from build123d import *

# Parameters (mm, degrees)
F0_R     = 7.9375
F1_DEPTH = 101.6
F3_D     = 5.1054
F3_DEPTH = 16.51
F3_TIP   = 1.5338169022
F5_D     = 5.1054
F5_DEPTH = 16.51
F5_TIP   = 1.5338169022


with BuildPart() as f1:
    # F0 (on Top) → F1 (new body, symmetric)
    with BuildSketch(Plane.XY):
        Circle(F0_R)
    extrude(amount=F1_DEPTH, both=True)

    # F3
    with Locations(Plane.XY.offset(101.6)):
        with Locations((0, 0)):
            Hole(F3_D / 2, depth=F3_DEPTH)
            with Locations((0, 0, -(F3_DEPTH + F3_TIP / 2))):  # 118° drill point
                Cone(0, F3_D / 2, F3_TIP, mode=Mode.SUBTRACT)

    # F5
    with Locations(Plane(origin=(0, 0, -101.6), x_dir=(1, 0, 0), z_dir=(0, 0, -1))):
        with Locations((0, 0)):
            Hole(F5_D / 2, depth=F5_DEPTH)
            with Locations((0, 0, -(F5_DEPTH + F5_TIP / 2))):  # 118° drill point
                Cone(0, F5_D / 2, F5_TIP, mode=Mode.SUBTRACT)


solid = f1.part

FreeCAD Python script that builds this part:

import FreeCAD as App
import Part
import Sketcher

V = App.Vector
Q = App.Units.Quantity

doc = App.newDocument("Part")
params = doc.addObject("Spreadsheet::Sheet", "Params")
for row, (alias, value) in enumerate([
    ("sketch1_diameter", "0.625 in"),
    ("pad1_length", "8 in"),
    ("sketch2_diameter", "0.201 in"),
    ("hole_diameter", "0.201 in"),
    ("hole_depth", "0.65 in"),
    ("sketch3_diameter", "0.201 in"),
    ("hole2_diameter", "0.201 in"),
    ("hole2_depth", "0.65 in"),
], start=1):
    params.set(f"A{row}", alias)
    params.set(f"B{row}", "=" + value)
    params.setAlias(f"B{row}", alias)

body = doc.addObject("PartDesign::Body", "Body")

# Sketch on XY plane
sketch1 = body.newObject("Sketcher::SketchObject", "Sketch")
sketch1.AttachmentSupport = (doc.getObject("XY_Plane"), [""])
sketch1.MapMode = "FlatFace"
sketch1.addGeometry(Part.Circle(V(0, 0, 0), V(0, 0, 1), 7.9375), False)
sketch1.addConstraint([
    Sketcher.Constraint("Coincident", 0, 3, -1, 1),
    Sketcher.Constraint("Diameter", 0, Q("0.625 in")),
])
sketch1.setExpression("Constraints[1]", "Params.sketch1_diameter")
pad1 = body.newObject("PartDesign::Pad", "Pad")
pad1.Profile = sketch1
pad1.setExpression("Length", "Params.pad1_length")
pad1.Midplane = True

# Sketch on XY plane
sketch2 = body.newObject("Sketcher::SketchObject", "Sketch001")
sketch2.AttachmentSupport = (doc.getObject("XY_Plane"), [""])
sketch2.MapMode = "FlatFace"
sketch2.AttachmentOffset = App.Placement(V(0, 0, 4 * 25.4), App.Rotation())
sketch2.addGeometry(Part.Circle(V(0, 0, 0), V(0, 0, 1), 2.5527), False)
sketch2.addConstraint([
    Sketcher.Constraint("Coincident", 0, 3, -1, 1),
    Sketcher.Constraint("Diameter", 0, Q("0.201 in")),
])
sketch2.setExpression("Constraints[1]", "Params.sketch2_diameter")
doc.recompute()
hole = body.newObject("PartDesign::Hole", "Hole")
hole.Profile = sketch2
hole.ThreadType = "None"
hole.setExpression("Diameter", "Params.hole_diameter")
hole.DepthType = "Dimension"
hole.setExpression("Depth", "Params.hole_depth")
hole.DrillPoint = "Angled"
hole.DrillPointAngle = 118

# Sketch on XY plane
sketch3 = body.newObject("Sketcher::SketchObject", "Sketch002")
sketch3.AttachmentSupport = (doc.getObject("XY_Plane"), [""])
sketch3.MapMode = "FlatFace"
sketch3.AttachmentOffset = App.Placement(V(0, 0, -4 * 25.4), App.Rotation())
sketch3.addGeometry(Part.Circle(V(0, 0, 0), V(0, 0, 1), 2.5527), False)
sketch3.addConstraint([
    Sketcher.Constraint("Coincident", 0, 3, -1, 1),
    Sketcher.Constraint("Diameter", 0, Q("0.201 in")),
])
sketch3.setExpression("Constraints[1]", "Params.sketch3_diameter")
doc.recompute()
hole2 = body.newObject("PartDesign::Hole", "Hole001")
hole2.Profile = sketch3
hole2.ThreadType = "None"
hole2.setExpression("Diameter", "Params.hole2_diameter")
hole2.DepthType = "Dimension"
hole2.setExpression("Depth", "Params.hole2_depth")
hole2.DrillPoint = "Angled"
hole2.DrillPointAngle = 118
hole2.Reversed = True

doc.recompute()
